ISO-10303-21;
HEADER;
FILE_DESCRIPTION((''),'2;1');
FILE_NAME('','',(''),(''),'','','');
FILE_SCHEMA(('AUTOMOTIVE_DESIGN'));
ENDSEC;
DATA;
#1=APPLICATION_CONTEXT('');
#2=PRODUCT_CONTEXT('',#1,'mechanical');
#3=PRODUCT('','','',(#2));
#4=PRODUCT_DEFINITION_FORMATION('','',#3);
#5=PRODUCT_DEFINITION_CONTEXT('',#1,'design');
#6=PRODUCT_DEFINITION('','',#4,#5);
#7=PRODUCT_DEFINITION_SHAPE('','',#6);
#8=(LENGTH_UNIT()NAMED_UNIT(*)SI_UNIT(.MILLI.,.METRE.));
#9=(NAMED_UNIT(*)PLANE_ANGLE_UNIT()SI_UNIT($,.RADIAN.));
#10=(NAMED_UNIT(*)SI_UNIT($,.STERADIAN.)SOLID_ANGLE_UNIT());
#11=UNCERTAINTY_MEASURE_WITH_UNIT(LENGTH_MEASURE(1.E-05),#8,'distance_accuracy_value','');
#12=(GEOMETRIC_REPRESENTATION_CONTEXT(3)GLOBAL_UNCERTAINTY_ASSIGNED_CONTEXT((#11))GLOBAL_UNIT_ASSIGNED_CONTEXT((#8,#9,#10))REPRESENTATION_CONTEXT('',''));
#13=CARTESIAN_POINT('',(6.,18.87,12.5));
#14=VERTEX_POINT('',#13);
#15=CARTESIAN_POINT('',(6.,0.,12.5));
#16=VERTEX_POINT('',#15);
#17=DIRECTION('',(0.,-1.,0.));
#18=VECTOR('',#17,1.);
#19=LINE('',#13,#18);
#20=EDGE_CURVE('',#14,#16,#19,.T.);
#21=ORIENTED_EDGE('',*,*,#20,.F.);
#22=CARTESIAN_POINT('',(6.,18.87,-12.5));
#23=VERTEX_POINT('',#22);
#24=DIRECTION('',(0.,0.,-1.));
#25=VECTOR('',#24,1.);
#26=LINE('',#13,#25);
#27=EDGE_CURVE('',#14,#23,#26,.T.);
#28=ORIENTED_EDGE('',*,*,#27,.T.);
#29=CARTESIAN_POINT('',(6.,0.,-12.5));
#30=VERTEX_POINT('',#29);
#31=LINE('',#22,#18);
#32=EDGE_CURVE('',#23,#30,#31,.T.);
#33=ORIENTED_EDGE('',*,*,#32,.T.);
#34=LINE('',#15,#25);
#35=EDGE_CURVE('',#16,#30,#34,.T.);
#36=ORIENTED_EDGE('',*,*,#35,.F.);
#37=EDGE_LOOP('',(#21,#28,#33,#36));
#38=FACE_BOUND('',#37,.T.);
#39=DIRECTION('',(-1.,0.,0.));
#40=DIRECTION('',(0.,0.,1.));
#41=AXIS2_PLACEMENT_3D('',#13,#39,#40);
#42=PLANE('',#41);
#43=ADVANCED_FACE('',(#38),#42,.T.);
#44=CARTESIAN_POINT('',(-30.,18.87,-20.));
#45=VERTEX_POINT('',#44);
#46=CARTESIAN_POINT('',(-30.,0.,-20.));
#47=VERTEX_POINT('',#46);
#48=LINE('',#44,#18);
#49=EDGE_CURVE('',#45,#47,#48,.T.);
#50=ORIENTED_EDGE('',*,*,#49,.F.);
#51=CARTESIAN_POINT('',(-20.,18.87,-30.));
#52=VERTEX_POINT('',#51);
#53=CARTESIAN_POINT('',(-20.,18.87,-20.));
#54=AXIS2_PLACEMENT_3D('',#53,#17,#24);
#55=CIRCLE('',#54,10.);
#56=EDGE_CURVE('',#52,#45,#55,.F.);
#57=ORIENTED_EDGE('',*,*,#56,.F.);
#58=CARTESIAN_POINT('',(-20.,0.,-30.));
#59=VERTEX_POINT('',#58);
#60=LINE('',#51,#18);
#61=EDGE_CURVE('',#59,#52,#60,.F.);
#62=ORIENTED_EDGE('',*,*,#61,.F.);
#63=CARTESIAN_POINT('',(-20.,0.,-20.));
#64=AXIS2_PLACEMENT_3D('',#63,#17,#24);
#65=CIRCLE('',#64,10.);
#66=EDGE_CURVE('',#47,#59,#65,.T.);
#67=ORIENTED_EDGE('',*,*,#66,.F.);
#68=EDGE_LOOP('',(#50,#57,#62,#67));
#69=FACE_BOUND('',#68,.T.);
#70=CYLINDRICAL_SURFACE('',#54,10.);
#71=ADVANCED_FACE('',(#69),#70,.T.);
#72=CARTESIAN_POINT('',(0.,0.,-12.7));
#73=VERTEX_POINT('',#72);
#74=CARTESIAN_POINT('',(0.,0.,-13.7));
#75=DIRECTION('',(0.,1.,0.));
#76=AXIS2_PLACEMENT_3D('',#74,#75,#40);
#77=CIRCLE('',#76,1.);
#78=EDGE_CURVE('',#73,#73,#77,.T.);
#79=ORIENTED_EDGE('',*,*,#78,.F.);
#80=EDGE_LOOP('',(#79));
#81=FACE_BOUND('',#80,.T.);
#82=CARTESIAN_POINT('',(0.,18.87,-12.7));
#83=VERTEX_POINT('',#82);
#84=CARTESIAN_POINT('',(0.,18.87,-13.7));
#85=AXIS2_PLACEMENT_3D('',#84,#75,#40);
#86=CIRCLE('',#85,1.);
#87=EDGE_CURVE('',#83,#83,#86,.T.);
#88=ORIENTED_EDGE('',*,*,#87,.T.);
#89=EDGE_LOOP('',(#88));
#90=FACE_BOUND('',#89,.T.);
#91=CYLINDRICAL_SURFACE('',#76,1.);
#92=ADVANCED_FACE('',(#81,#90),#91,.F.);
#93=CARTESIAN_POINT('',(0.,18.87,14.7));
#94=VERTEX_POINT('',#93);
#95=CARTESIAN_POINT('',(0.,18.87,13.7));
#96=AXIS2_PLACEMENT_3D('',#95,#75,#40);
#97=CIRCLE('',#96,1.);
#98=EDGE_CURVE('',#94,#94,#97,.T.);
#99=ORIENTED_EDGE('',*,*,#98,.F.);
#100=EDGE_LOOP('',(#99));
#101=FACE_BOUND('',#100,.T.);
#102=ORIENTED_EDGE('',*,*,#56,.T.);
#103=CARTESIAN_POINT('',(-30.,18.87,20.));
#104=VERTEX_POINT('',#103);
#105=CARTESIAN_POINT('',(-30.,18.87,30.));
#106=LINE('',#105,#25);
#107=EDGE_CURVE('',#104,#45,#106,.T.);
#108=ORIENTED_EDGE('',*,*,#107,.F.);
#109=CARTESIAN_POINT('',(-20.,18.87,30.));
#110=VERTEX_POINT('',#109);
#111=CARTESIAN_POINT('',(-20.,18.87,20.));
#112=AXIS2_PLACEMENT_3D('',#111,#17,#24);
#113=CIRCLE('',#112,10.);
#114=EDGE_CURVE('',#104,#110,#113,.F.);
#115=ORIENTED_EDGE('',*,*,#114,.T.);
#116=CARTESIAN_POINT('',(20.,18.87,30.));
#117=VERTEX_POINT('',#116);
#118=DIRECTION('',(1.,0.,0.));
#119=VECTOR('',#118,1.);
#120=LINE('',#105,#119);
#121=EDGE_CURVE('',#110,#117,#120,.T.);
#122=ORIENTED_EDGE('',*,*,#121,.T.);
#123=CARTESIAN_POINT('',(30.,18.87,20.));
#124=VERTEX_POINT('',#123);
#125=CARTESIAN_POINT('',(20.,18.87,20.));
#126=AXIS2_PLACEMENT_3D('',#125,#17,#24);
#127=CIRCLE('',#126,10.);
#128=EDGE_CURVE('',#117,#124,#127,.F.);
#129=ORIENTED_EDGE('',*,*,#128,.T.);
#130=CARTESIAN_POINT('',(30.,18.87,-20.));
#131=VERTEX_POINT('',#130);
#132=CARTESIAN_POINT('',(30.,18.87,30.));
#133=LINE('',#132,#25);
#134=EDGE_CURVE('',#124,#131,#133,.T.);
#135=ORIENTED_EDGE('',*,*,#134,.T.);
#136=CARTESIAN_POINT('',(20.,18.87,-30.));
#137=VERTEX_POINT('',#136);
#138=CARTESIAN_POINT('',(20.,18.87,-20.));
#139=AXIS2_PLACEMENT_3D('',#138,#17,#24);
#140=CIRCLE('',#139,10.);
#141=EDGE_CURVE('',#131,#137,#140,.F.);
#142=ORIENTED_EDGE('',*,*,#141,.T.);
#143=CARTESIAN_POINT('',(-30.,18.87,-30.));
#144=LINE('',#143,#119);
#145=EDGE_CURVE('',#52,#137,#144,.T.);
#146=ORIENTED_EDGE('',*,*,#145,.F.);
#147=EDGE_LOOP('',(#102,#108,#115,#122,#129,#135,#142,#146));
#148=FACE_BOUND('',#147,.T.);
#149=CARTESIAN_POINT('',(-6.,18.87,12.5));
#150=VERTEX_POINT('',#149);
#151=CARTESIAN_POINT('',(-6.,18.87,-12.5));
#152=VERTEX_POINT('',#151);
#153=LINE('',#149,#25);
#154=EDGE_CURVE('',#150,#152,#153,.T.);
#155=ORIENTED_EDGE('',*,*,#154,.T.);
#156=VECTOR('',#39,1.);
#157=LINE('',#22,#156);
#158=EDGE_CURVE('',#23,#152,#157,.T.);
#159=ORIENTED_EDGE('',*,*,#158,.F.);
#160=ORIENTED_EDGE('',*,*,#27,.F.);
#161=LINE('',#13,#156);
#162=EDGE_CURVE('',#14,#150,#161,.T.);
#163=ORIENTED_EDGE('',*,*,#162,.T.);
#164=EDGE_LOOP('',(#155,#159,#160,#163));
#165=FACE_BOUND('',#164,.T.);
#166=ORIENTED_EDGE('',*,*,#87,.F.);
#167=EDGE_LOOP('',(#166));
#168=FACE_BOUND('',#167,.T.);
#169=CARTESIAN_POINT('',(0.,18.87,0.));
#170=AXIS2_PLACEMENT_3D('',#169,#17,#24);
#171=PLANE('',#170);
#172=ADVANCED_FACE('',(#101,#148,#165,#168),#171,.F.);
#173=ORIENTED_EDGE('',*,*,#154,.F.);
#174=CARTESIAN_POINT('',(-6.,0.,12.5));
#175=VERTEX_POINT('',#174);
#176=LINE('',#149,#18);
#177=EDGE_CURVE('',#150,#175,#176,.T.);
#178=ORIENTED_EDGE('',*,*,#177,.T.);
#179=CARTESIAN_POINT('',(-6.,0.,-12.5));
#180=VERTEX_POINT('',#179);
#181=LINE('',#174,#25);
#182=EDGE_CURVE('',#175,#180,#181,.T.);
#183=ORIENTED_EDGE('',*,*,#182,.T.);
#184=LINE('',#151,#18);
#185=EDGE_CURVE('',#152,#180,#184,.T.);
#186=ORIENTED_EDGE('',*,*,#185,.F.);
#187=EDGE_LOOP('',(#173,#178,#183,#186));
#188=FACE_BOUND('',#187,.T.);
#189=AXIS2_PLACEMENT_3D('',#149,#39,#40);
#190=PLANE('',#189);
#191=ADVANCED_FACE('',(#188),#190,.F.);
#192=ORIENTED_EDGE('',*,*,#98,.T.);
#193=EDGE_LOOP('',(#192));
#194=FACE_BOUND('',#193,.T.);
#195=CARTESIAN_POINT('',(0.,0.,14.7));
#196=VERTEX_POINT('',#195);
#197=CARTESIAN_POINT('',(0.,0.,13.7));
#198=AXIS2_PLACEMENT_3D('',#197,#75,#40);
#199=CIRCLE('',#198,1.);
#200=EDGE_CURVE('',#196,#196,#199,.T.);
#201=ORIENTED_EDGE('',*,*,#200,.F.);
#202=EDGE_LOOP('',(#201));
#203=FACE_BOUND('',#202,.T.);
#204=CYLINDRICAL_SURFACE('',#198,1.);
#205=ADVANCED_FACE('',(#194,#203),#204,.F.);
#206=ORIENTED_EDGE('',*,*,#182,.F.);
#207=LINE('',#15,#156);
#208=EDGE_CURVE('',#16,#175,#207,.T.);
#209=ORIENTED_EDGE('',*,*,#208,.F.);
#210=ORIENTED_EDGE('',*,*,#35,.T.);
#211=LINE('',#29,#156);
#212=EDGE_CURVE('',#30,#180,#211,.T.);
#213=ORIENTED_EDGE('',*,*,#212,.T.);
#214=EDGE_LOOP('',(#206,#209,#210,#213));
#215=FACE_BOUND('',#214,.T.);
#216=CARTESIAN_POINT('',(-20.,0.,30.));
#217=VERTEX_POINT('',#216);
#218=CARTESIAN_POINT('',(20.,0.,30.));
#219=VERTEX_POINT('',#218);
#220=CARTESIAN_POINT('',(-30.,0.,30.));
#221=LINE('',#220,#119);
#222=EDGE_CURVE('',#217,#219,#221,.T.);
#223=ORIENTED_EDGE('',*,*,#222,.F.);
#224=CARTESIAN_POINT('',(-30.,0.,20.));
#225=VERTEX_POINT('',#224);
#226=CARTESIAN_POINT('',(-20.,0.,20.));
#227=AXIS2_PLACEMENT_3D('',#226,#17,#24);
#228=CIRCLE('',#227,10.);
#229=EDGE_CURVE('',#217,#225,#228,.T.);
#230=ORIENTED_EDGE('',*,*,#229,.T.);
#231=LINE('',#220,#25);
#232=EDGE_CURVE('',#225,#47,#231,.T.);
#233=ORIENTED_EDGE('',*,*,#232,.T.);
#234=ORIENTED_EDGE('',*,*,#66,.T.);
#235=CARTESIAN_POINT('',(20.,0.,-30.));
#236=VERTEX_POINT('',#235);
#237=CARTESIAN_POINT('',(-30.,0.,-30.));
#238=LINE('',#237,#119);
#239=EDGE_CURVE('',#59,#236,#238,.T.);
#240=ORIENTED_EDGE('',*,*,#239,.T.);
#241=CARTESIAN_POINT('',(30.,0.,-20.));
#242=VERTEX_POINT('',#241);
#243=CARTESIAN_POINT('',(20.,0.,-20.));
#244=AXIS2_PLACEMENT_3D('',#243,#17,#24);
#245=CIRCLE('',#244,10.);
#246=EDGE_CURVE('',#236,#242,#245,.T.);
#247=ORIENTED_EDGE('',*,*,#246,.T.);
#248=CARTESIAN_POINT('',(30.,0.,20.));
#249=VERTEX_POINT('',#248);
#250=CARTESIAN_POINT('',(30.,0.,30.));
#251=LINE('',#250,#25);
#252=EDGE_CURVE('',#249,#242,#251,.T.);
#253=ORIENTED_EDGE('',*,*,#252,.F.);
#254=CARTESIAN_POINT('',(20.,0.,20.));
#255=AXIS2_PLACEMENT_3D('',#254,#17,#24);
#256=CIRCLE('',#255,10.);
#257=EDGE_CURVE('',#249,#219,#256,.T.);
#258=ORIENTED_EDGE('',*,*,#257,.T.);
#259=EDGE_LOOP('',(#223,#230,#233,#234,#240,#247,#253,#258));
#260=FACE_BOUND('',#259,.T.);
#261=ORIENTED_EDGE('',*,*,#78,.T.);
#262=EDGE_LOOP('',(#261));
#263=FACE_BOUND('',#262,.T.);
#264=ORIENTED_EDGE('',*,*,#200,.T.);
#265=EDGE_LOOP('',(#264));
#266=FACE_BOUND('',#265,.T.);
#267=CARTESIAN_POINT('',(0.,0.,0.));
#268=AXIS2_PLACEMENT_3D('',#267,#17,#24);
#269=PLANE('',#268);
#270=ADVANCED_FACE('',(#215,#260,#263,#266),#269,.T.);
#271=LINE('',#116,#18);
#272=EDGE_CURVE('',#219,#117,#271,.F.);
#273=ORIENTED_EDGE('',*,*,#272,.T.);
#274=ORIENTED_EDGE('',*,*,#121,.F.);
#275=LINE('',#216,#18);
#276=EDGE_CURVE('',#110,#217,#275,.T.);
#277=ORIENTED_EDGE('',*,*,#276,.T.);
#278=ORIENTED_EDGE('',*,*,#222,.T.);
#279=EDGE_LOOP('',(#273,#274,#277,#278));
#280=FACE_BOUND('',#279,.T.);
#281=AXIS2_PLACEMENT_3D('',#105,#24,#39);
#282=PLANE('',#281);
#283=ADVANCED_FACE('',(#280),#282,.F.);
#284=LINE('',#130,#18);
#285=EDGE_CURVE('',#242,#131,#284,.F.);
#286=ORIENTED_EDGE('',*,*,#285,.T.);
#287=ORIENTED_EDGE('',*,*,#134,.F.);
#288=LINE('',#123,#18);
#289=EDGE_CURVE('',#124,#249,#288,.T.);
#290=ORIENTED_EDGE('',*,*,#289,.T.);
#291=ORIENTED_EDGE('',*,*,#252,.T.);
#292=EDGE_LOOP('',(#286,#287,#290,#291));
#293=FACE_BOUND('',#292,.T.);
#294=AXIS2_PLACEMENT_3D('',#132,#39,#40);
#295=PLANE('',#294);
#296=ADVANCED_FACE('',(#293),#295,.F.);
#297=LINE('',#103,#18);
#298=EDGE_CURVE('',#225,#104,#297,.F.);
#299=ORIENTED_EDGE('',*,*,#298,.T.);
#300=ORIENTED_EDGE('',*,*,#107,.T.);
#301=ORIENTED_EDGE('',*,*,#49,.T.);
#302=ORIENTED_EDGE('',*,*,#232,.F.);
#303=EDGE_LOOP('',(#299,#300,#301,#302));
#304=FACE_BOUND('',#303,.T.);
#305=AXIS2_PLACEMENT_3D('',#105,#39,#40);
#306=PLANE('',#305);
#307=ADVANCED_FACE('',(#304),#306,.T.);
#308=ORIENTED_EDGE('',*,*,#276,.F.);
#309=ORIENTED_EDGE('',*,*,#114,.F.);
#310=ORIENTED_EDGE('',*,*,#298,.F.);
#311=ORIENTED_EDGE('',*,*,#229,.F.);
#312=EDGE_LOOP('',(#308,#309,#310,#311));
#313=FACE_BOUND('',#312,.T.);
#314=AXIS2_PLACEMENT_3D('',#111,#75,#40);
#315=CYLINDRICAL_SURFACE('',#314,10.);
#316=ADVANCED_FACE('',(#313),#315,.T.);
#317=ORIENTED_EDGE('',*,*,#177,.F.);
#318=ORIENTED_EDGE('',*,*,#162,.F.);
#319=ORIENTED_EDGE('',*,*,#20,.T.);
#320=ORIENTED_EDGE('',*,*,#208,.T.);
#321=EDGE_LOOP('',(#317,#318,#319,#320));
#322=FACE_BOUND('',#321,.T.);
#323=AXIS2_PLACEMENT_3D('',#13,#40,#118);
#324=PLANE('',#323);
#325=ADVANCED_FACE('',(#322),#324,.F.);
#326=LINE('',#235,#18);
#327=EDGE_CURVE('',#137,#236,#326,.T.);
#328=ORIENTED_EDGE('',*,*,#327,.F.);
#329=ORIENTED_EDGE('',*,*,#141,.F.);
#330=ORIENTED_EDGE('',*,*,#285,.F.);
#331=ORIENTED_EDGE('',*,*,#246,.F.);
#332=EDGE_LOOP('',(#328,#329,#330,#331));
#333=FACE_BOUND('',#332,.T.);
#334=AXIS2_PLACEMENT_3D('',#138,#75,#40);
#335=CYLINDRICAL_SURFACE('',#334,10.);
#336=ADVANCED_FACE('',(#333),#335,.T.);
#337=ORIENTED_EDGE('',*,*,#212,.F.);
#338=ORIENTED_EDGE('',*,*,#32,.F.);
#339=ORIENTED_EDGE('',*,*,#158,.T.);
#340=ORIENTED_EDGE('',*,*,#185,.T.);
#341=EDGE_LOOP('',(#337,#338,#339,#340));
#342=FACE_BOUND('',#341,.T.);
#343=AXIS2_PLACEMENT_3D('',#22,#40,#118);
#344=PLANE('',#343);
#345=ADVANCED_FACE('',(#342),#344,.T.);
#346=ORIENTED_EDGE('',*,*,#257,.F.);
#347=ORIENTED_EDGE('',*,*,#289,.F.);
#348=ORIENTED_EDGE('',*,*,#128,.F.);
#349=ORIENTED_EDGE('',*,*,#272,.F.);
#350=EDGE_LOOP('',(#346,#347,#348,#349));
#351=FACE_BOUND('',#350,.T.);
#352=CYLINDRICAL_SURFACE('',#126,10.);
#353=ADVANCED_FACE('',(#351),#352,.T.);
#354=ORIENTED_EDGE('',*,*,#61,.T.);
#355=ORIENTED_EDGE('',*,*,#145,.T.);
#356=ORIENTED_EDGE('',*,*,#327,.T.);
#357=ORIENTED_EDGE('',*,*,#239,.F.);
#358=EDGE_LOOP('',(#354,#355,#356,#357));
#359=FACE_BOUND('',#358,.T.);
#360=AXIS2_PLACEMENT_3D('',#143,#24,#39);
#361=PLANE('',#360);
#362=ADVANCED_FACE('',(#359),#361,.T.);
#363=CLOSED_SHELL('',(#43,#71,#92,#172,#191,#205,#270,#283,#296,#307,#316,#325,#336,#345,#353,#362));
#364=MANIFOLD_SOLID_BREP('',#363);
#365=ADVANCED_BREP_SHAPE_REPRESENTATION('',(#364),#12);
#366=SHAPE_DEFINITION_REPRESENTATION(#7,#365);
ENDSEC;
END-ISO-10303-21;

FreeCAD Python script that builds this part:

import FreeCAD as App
import Part
import Sketcher
from FreeCAD import Vector
Q = App.Units.Quantity


def edges_at(feature, points):
    """Names of the edges that pass closest to the given points."""
    edges = feature.Shape.Edges
    near = lambda p: min(range(len(edges)), key=lambda i: edges[i].distToShape(Part.Vertex(*p))[0])
    return sorted({f"Edge{near(p) + 1}" for p in points})


def add_polygon(sketch, points):
    """Adds a closed chain of lines whose ends are joined by coincident constraints."""
    first, n = sketch.GeometryCount, len(points)
    for a, b in zip(points, points[1:] + points[:1]):
        sketch.addGeometry(Part.LineSegment(App.Vector(*a, 0), App.Vector(*b, 0)), False)
    for i in range(n):
        sketch.addConstraint(Sketcher.Constraint("Coincident", first + i, 2, first + (i + 1) % n, 1))

doc = App.newDocument("Part")
params = doc.addObject("Spreadsheet::Sheet", "Params")
for row, (alias, value) in enumerate([
    ("sketch1_width", "60 mm"),
    ("pad1_length", "18.87 mm"),
    ("fillet_radius", "10 mm"),
    ("sketch2_width", "12 mm"),
    ("sketch2_height", "25 mm"),
    ("sketch3_diameter", "2 mm"),
    ("sketch4_diameter", "2 mm"),
], start=1):
    params.set(f"A{row}", alias)
    params.set(f"B{row}", "=" + value)
    params.setAlias(f"B{row}", alias)

body = doc.addObject("PartDesign::Body", "Body")

sketch1 = doc.addObject("Sketcher::SketchObject", "Sketch")
body.addObject(sketch1)
sketch1.AttachmentSupport = (doc.XZ_Plane, [""])
sketch1.MapMode = "FlatFace"
add_polygon(sketch1, [(-30, -30), (-30, 30), (30, 30), (30, -30)])
sketch1.addConstraint([
    Sketcher.Constraint("Vertical", 0),
    Sketcher.Constraint("Horizontal", 1),
    Sketcher.Constraint("Vertical", 2),
    Sketcher.Constraint("Horizontal", 3),
    Sketcher.Constraint("Symmetric", 0, 2, 2, 2, -1, 1),
    Sketcher.Constraint("Equal", 3, 0),
    Sketcher.Constraint("DistanceX", 1, 1, 1, 2, Q("60 mm")),
])
sketch1.setExpression("Constraints[10]", "Params.sketch1_width")
pad1 = doc.addObject("PartDesign::Pad", "Pad")
body.addObject(pad1)
pad1.Profile = sketch1
pad1.setExpression("Length", "Params.pad1_length")
pad1.Reversed = True
doc.recompute()

fillet = doc.addObject("PartDesign::Fillet", "Fillet")
body.addObject(fillet)
fillet.Base = (pad1, edges_at(pad1, [
    (-30, 9.435, 30),
    (30, 9.435, 30),
    (30, 9.435, -30),
    (-30, 9.435, -30),
]))
fillet.setExpression("Radius", "Params.fillet_radius")

sketch2 = doc.addObject("Sketcher::SketchObject", "Sketch001")
body.addObject(sketch2)
sketch2.AttachmentSupport = (doc.XZ_Plane, [""])
sketch2.MapMode = "FlatFace"
add_polygon(sketch2, [(6, -12), (6, 12), (-6, 12), (-6, -12)])
sketch2.addConstraint([
    Sketcher.Constraint("Vertical", 0),
    Sketcher.Constraint("Horizontal", 1),
    Sketcher.Constraint("Vertical", 2),
    Sketcher.Constraint("Horizontal", 3),
    Sketcher.Constraint("Symmetric", 0, 2, 2, 2, -1, 1),
    Sketcher.Constraint("DistanceX", 1, 2, 1, 1, Q("12 mm")),
    Sketcher.Constraint("DistanceY", 0, 1, 0, 2, Q("25 mm")),
])
sketch2.setExpression("Constraints[9]", "Params.sketch2_width")
sketch2.setExpression("Constraints[10]", "Params.sketch2_height")
pocket1 = doc.addObject("PartDesign::Pocket", "Pocket")
body.addObject(pocket1)
pocket1.Profile = sketch2
pocket1.Type = "ThroughAll"

sketch3 = doc.addObject("Sketcher::SketchObject", "Sketch002")
body.addObject(sketch3)
sketch3.AttachmentSupport = (doc.XZ_Plane, [""])
sketch3.MapMode = "FlatFace"
sketch3.AttachmentOffset = App.Placement(Vector(0, 0, -18.87), App.Rotation())
sketch3.addGeometry(Part.Circle(Vector(0, -13.7, 0), Vector(0, 0, 1), 1), False)
sketch3.addConstraint([
    Sketcher.Constraint("PointOnObject", 0, 3, -2),
    Sketcher.Constraint("Diameter", 0, Q("2 mm")),
    Sketcher.Constraint("DistanceY", 0, 3, -1, 1, Q("13.7 mm")),
])
sketch3.setExpression("Constraints[1]", "Params.sketch3_diameter")
pocket2 = doc.addObject("PartDesign::Pocket", "Pocket001")
body.addObject(pocket2)
pocket2.Profile = sketch3
pocket2.Type = "ThroughAll"
pocket2.Reversed = True

sketch4 = doc.addObject("Sketcher::SketchObject", "Sketch003")
body.addObject(sketch4)
sketch4.AttachmentSupport = (doc.XZ_Plane, [""])
sketch4.MapMode = "FlatFace"
sketch4.AttachmentOffset = App.Placement(Vector(0, 0, -18.87), App.Rotation())
sketch4.addGeometry(Part.Circle(Vector(0, 13.7, 0), Vector(0, 0, 1), 1), False)
sketch4.addConstraint([
    Sketcher.Constraint("PointOnObject", 0, 3, -2),
    Sketcher.Constraint("Diameter", 0, Q("2 mm")),
    Sketcher.Constraint("DistanceY", -1, 1, 0, 3, Q("13.7 mm")),
])
sketch4.setExpression("Constraints[1]", "Params.sketch4_diameter")
pocket3 = doc.addObject("PartDesign::Pocket", "Pocket002")
body.addObject(pocket3)
pocket3.Profile = sketch4
pocket3.Type = "ThroughAll"
pocket3.Reversed = True

doc.recompute()
